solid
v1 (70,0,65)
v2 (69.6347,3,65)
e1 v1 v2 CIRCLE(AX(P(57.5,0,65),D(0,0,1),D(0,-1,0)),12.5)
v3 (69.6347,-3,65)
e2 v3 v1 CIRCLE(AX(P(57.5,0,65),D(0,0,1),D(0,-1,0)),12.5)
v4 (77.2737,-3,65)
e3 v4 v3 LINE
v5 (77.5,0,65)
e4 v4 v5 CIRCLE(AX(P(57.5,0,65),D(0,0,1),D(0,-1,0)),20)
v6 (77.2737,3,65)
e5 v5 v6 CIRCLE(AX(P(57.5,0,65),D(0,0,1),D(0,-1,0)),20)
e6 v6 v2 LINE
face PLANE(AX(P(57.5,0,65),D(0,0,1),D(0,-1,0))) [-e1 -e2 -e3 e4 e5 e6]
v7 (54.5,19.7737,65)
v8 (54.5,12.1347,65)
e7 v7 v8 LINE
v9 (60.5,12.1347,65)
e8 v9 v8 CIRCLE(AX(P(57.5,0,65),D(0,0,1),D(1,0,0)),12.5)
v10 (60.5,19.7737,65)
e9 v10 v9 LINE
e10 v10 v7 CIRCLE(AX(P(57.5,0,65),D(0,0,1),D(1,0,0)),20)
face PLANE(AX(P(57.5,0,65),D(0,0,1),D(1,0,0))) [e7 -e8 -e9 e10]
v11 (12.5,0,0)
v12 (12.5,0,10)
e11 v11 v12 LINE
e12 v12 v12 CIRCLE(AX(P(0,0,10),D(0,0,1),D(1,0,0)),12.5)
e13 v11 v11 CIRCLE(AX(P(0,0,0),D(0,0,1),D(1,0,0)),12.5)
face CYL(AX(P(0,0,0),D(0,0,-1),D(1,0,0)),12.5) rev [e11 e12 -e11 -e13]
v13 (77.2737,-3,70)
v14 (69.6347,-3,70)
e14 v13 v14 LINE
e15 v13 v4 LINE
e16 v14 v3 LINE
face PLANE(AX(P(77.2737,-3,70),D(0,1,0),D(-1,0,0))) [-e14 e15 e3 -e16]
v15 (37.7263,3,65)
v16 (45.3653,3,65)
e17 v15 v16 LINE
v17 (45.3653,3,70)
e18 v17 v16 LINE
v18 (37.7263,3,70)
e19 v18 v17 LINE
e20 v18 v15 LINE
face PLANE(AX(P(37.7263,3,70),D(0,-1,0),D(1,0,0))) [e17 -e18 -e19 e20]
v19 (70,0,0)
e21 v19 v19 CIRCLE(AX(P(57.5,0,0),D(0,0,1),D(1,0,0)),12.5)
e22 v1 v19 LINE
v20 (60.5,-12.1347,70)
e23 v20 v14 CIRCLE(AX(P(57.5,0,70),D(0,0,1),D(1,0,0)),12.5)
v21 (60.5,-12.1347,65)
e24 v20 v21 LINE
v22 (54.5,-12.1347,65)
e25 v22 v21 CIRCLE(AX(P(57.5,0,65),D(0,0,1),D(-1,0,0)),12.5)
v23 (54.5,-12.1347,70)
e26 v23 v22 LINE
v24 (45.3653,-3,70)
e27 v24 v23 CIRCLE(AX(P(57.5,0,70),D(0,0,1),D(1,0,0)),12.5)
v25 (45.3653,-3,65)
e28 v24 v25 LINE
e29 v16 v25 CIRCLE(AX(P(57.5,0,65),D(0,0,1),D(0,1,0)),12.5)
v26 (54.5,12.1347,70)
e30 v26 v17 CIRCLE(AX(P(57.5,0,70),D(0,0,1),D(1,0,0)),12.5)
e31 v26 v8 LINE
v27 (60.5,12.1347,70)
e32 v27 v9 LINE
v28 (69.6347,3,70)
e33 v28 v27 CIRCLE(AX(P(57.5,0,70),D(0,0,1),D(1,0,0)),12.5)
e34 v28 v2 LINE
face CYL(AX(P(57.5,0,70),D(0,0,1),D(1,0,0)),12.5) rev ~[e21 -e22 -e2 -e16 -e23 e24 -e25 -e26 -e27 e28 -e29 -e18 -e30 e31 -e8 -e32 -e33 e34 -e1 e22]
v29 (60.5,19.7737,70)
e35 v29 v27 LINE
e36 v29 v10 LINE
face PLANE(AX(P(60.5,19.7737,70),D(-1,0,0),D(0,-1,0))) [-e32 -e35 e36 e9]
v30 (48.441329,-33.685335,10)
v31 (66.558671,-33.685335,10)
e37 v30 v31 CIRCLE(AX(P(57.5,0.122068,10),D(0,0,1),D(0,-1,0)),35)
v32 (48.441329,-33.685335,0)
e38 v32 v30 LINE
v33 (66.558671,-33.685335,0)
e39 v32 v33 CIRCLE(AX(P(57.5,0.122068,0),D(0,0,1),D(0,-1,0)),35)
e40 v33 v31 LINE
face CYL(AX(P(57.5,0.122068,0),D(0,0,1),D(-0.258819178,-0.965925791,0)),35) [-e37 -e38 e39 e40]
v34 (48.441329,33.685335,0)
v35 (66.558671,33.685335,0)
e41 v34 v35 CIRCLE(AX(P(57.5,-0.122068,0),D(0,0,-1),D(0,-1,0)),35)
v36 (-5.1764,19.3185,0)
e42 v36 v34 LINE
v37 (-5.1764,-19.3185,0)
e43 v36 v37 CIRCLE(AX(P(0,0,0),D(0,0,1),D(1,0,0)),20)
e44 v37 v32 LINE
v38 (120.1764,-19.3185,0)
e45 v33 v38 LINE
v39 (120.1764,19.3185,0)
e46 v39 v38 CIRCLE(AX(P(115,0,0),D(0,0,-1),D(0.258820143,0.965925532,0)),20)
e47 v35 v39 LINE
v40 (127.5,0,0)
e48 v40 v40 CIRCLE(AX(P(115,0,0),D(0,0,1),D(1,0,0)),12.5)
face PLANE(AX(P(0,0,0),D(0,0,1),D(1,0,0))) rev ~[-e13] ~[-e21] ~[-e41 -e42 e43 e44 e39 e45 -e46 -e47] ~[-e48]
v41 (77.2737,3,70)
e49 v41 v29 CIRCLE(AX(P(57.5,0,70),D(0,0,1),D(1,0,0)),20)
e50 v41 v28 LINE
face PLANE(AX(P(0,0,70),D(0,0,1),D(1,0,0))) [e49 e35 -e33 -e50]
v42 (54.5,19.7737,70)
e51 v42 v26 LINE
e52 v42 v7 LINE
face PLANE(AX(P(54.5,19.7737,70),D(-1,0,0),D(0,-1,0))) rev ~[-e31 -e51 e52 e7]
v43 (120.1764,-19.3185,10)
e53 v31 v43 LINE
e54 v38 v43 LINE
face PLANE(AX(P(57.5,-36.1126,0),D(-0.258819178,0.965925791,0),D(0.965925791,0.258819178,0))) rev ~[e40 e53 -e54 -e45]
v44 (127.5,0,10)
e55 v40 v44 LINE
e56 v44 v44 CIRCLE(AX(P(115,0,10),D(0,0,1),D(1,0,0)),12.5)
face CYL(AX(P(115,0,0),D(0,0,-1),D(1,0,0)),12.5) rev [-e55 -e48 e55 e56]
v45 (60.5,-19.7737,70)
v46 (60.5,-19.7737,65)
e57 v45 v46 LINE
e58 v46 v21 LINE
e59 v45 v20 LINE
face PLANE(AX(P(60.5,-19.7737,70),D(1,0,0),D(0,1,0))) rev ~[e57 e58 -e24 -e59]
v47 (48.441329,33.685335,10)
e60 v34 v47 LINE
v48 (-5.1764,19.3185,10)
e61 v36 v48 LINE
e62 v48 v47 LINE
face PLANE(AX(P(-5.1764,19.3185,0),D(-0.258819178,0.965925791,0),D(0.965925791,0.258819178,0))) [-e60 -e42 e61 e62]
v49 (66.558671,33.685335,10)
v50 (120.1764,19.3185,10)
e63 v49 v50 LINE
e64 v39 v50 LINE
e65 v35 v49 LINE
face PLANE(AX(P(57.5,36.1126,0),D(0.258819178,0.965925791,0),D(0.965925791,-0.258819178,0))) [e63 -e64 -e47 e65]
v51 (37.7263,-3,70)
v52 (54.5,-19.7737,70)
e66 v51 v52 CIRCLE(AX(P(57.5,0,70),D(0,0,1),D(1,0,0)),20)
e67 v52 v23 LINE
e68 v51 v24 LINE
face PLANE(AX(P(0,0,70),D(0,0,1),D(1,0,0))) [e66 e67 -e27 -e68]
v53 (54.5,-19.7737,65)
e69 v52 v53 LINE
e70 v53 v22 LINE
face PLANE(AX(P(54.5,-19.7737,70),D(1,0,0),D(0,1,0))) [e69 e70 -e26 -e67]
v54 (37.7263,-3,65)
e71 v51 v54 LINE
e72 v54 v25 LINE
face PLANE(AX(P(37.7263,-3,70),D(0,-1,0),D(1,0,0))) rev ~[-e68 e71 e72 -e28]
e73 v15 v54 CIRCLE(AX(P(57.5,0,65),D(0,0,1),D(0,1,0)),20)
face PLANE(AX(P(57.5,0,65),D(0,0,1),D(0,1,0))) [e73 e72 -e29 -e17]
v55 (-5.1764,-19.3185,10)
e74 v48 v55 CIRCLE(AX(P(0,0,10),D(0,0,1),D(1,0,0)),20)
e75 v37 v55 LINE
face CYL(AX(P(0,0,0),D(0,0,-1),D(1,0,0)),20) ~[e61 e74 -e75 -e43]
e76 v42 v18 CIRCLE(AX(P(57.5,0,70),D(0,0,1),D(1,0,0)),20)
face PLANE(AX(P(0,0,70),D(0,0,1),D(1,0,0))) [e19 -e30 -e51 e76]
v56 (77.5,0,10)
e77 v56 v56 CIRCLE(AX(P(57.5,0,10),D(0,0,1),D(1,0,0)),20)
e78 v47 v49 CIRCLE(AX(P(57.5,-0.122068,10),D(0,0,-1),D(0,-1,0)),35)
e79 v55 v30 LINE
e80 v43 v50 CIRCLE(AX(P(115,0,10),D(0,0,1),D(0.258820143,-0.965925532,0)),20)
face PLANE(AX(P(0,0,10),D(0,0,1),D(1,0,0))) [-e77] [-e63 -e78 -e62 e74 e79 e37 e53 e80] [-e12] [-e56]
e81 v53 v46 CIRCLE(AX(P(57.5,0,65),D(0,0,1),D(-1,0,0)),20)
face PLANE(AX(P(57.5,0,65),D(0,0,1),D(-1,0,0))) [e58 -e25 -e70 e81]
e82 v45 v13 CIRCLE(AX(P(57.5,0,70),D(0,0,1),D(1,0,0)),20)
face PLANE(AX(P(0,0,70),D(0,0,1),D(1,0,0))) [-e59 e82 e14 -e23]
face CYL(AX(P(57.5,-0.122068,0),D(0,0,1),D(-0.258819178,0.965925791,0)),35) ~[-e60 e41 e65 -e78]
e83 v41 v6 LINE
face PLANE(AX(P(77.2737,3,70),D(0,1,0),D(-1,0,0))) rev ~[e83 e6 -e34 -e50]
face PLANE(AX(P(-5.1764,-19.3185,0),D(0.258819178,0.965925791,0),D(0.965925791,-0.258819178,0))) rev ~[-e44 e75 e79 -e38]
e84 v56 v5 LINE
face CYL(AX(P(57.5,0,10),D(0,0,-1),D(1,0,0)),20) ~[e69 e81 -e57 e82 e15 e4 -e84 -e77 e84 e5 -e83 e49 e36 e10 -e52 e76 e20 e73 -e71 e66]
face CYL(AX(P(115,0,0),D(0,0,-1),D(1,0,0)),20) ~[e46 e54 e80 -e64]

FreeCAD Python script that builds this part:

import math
import FreeCAD as App
import Part
import Sketcher
Q = App.Units.Quantity


def edges_at(feature, points):
    """Names of the edges that pass closest to the given points."""
    edges = feature.Shape.Edges
    near = lambda p: min(range(len(edges)), key=lambda i: edges[i].distToShape(Part.Vertex(*p))[0])
    return sorted({f"Edge{near(p) + 1}" for p in points})

doc = App.newDocument("Part")
body = doc.addObject("PartDesign::Body", "Body")

sketch1 = body.newObject("Sketcher::SketchObject", "Sketch")
sketch1.AttachmentSupport = (doc.getObject("XY_Plane"), [""])
sketch1.MapMode = "FlatFace"
sketch1.addGeometry(Part.ArcOfCircle(Part.Circle(App.Vector(0, 0, 0), App.Vector(0, 0, 1), 20), math.radians(105), math.radians(255)), False)
sketch1.addGeometry(Part.LineSegment(App.Vector(-5, -19, 0), App.Vector(58, -36, 0)), False)
sketch1.addGeometry(Part.LineSegment(App.Vector(58, -36, 0), App.Vector(120, -19, 0)), False)
sketch1.addGeometry(Part.ArcOfCircle(Part.Circle(App.Vector(115, 0, 0), App.Vector(0, 0, 1), 20), math.radians(-75), math.radians(75)), False)
sketch1.addGeometry(Part.LineSegment(App.Vector(120, 19, 0), App.Vector(58, 36, 0)), False)
sketch1.addGeometry(Part.LineSegment(App.Vector(58, 36, 0), App.Vector(-5, 19, 0)), False)
sketch1.addGeometry(Part.Circle(App.Vector(0, 0, 0), App.Vector(0, 0, 1), 12), False)
sketch1.addGeometry(Part.Circle(App.Vector(115, 0, 0), App.Vector(0, 0, 1), 12), False)
sketch1.addConstraint(Sketcher.Constraint("Tangent", 0, 2, 1, 1))
sketch1.addConstraint(Sketcher.Constraint("Coincident", 1, 2, 2, 1))
sketch1.addConstraint(Sketcher.Constraint("Tangent", 2, 2, 3, 1))
sketch1.addConstraint(Sketcher.Constraint("Tangent", 3, 2, 4, 1))
sketch1.addConstraint(Sketcher.Constraint("Coincident", 4, 2, 5, 1))
sketch1.addConstraint(Sketcher.Constraint("Tangent", 5, 2, 0, 1))
sketch1.addConstraint(Sketcher.Constraint("Coincident", 0, 3, -1, 1))
sketch1.addConstraint(Sketcher.Constraint("Coincident", 6, 3, -1, 1))
sketch1.addConstraint(Sketcher.Constraint("Coincident", 7, 3, 3, 3))
sketch1.addConstraint(Sketcher.Constraint("Equal", 0, 3))
sketch1.addConstraint(Sketcher.Constraint("Equal", 6, 7))
sketch1.addConstraint(Sketcher.Constraint("Symmetric", 2, 2, 3, 2, -1))
sketch1.addConstraint(Sketcher.Constraint("Parallel", 1, 4))
sketch1.addConstraint(Sketcher.Constraint("Parallel", 2, 5))
sketch1.addConstraint(Sketcher.Constraint("Diameter", 6, 25.0))
sketch1.addConstraint(Sketcher.Constraint("Radius", 0, 20.0))
sketch1.addConstraint(Sketcher.Constraint("DistanceX", -1, 1, 3, 3, 115.0))
sketch1.addConstraint(Sketcher.Constraint("Angle", 1, Q("-15 deg")))
pad1 = body.newObject("PartDesign::Pad", "Pad")
pad1.Profile = sketch1
pad1.Length = 10

sketch2 = body.newObject("Sketcher::SketchObject", "Sketch001")
sketch2.AttachmentSupport = (doc.getObject("XY_Plane"), [""])
sketch2.MapMode = "FlatFace"
sketch2.AttachmentOffset = App.Placement(App.Vector(0, 0, 10), App.Rotation())
sketch2.addGeometry(Part.Circle(App.Vector(58, 0, 0), App.Vector(0, 0, 1), 20), False)
sketch2.addConstraint(Sketcher.Constraint("PointOnObject", 0, 3, -1))
sketch2.addConstraint(Sketcher.Constraint("Diameter", 0, 40.0))
sketch2.addConstraint(Sketcher.Constraint("DistanceX", -1, 1, 0, 3, 57.5))
pad2 = body.newObject("PartDesign::Pad", "Pad001")
pad2.Profile = sketch2
pad2.Length = 60

sketch3 = body.newObject("Sketcher::SketchObject", "Sketch002")
sketch3.AttachmentSupport = (doc.getObject("XY_Plane"), [""])
sketch3.MapMode = "FlatFace"
sketch3.AttachmentOffset = App.Placement(App.Vector(0, 0, 70), App.Rotation())
sketch3.addGeometry(Part.Circle(App.Vector(58, 0, 0), App.Vector(0, 0, 1), 12), False)
sketch3.addConstraint(Sketcher.Constraint("PointOnObject", 0, 3, -1))
sketch3.addConstraint(Sketcher.Constraint("Diameter", 0, 25.0))
sketch3.addConstraint(Sketcher.Constraint("DistanceX", -1, 1, 0, 3, 57.5))
pocket1 = body.newObject("PartDesign::Pocket", "Pocket")
pocket1.Profile = sketch3
pocket1.Length = 70

sketch4 = body.newObject("Sketcher::SketchObject", "Sketch003")
sketch4.AttachmentSupport = (doc.getObject("XY_Plane"), [""])
sketch4.MapMode = "FlatFace"
sketch4.AttachmentOffset = App.Placement(App.Vector(0, 0, 70), App.Rotation())
sketch4.addGeometry(Part.ArcOfCircle(Part.Circle(App.Vector(58, 0, 0), App.Vector(0, 0, 1), 12), math.radians(76), math.radians(104)), False)
sketch4.addGeometry(Part.LineSegment(App.Vector(60, 12, 0), App.Vector(60, 20, 0)), False)
sketch4.addGeometry(Part.ArcOfCircle(Part.Circle(App.Vector(58, 0, 0), App.Vector(0, 0, 1), 20), math.radians(81.37), math.radians(98.63)), False)
sketch4.addGeometry(Part.LineSegment(App.Vector(54, 20, 0), App.Vector(54, 12, 0)), False)
sketch4.addConstraint(Sketcher.Constraint("Coincident", 0, 1, 1, 1))
sketch4.addConstraint(Sketcher.Constraint("Coincident", 1, 2, 2, 1))
sketch4.addConstraint(Sketcher.Constraint("Coincident", 2, 2, 3, 1))
sketch4.addConstraint(Sketcher.Constraint("Coincident", 3, 2, 0, 2))
sketch4.addConstraint(Sketcher.Constraint("Vertical", 1))
sketch4.addConstraint(Sketcher.Constraint("Vertical", 3))
sketch4.addConstraint(Sketcher.Constraint("Coincident", 2, 3, 0, 3))
sketch4.addConstraint(Sketcher.Constraint("PointOnObject", 0, 3, -1))
sketch4.addConstraint(Sketcher.Constraint("Horizontal", 1, 2, 2, 2))
sketch4.addConstraint(Sketcher.Constraint("Radius", 2, 20.0))
sketch4.addConstraint(Sketcher.Constraint("DistanceX", 2, 2, 1, 2, 6.0))
sketch4.addConstraint(Sketcher.Constraint("Radius", 0, 12.5))
sketch4.addConstraint(Sketcher.Constraint("DistanceX", -1, 1, 0, 3, 57.5))
pocket2 = body.newObject("PartDesign::Pocket", "Pocket001")
pocket2.Profile = sketch4
pocket2.Length = 5
doc.recompute()

datumline = body.newObject("PartDesign::Line", "DatumLine")
datumline.Placement = App.Placement(App.Vector(57.5, 0, 0), App.Rotation(App.Vector(0, 0, 1), App.Vector(0, 0, 1)))
polarpattern = body.newObject("PartDesign::PolarPattern", "PolarPattern")
polarpattern.Originals = [pocket2]
polarpattern.Axis = (datumline, [""])
polarpattern.Angle = 360
polarpattern.Occurrences = 4
body.Tip = polarpattern
doc.recompute()

fillet = body.newObject("PartDesign::Fillet", "Fillet")
fillet.Base = (polarpattern, edges_at(polarpattern, [(57.5, 36.113, 5), (57.5, -36.113, 5)]))
fillet.Radius = 35

doc.recompute()
